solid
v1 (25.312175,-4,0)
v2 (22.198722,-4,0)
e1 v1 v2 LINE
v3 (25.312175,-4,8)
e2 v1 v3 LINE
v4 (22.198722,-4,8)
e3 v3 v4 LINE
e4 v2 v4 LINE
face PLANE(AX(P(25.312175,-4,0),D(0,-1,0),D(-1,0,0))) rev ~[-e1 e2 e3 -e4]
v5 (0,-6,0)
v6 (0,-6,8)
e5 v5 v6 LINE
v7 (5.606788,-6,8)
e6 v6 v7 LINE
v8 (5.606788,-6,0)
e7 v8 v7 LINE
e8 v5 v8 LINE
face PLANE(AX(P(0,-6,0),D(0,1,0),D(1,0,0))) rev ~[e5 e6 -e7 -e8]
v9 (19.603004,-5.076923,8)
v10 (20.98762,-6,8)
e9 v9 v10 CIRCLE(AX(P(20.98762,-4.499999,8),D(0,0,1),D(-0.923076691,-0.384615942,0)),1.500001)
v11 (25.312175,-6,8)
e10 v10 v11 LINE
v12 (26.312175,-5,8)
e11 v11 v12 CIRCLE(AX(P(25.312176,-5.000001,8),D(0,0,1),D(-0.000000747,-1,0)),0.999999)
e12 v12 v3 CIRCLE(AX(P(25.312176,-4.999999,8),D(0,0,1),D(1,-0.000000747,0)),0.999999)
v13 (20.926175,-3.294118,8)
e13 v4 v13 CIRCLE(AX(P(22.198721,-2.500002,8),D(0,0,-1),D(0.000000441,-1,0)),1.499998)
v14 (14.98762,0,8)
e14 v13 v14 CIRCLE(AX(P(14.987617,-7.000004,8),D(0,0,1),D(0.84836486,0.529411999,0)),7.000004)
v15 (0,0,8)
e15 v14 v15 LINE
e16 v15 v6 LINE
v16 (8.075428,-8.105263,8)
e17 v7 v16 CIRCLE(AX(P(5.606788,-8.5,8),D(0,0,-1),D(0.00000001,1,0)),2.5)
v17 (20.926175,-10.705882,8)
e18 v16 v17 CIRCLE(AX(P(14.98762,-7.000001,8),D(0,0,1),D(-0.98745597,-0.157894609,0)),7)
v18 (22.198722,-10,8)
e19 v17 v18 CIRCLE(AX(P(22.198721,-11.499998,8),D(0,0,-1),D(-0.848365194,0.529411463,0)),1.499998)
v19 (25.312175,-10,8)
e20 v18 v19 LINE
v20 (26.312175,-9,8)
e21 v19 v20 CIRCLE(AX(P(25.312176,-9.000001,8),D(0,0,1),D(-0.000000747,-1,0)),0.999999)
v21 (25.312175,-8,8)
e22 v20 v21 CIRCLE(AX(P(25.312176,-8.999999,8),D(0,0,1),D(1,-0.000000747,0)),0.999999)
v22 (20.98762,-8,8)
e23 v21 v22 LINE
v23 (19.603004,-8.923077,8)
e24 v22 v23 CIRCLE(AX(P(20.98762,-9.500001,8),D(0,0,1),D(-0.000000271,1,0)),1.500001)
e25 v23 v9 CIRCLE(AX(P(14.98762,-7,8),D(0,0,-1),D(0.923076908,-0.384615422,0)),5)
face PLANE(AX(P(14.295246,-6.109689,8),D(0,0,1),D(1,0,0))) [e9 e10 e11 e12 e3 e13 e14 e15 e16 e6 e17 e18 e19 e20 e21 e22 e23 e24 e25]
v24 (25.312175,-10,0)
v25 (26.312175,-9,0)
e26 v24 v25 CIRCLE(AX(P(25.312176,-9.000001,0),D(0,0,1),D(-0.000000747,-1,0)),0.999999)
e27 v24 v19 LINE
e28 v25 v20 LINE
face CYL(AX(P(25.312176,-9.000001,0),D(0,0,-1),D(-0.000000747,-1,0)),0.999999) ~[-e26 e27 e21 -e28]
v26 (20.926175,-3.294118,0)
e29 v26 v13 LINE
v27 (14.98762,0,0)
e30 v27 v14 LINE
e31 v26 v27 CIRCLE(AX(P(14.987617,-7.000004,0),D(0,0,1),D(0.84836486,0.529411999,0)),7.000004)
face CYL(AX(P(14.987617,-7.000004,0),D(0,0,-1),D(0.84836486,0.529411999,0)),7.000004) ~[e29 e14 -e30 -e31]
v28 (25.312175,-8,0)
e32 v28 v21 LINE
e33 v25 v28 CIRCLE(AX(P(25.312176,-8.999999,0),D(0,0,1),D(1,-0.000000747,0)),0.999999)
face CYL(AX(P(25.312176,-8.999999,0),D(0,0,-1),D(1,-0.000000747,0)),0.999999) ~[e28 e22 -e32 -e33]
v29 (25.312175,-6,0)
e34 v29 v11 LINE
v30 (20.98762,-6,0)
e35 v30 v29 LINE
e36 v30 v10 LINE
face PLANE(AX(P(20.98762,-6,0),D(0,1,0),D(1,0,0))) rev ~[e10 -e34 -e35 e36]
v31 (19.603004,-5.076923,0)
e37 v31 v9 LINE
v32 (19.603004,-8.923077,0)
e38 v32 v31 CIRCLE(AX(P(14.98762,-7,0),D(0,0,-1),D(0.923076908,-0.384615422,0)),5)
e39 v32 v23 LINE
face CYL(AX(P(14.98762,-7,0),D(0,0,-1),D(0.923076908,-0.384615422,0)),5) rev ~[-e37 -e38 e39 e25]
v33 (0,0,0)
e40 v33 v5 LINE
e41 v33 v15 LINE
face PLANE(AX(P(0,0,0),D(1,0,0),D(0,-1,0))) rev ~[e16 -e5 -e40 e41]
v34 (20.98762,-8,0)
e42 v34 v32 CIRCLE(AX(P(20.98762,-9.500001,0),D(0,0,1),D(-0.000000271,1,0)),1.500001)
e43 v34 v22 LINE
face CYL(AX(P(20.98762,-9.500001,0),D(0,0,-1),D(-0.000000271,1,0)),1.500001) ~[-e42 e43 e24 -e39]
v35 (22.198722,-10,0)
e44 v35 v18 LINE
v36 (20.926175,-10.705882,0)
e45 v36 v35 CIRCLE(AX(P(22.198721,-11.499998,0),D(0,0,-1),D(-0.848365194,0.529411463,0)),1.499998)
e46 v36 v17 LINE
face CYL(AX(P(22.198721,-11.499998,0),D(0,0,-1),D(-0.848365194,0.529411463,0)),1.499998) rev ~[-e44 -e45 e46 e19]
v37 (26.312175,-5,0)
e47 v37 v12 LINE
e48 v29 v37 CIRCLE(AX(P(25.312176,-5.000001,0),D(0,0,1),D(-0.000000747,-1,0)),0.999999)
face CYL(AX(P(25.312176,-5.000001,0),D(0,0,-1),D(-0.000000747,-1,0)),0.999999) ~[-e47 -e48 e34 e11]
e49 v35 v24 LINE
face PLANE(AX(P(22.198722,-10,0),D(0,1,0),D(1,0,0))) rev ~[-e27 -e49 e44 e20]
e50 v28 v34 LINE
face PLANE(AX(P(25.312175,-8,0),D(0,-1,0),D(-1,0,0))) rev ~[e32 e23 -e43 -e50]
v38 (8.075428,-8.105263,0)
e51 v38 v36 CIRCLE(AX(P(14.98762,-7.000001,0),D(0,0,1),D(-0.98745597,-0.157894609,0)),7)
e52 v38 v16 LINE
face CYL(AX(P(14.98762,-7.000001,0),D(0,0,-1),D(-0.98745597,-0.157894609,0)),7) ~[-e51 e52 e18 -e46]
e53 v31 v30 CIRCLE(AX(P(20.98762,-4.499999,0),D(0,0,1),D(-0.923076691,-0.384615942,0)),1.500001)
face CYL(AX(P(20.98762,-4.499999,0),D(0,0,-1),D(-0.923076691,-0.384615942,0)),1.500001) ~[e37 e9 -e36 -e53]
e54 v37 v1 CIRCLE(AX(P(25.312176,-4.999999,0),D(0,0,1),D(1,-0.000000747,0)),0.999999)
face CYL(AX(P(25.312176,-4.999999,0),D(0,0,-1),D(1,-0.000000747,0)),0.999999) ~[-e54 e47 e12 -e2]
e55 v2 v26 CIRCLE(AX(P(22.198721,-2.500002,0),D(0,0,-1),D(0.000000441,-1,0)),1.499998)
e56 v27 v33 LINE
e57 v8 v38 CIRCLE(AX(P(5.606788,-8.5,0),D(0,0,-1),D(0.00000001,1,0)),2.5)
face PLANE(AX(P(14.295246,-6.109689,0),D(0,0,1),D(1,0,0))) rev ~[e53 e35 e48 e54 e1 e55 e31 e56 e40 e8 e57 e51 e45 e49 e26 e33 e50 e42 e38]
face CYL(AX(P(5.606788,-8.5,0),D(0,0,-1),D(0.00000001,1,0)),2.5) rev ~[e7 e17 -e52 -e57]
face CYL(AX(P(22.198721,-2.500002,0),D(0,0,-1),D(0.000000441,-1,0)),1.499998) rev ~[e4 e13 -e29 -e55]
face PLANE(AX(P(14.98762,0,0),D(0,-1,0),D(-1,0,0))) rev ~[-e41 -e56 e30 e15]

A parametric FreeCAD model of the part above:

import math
import FreeCAD as App
import Part
import Sketcher
from FreeCAD import Vector
Q = App.Units.Quantity

doc = App.newDocument("Part")
body = doc.addObject("PartDesign::Body", "Body")

# Sketch on XY plane
sketch1 = doc.addObject("Sketcher::SketchObject", "Sketch")
body.addObject(sketch1)
sketch1.AttachmentSupport = (doc.XY_Plane, [""])
sketch1.MapMode = "FlatFace"
sketch1.addGeometry([
    Part.LineSegment(Vector(0, 0, 0), Vector(0, -6, 0)),  # 0
    Part.LineSegment(Vector(0, -6, 0), Vector(5.6, -6, 0)),  # 1
    Part.ArcOfCircle(Part.Circle(Vector(5.6, -8.5, 0), Vector(0, 0, 1), 2.5), math.radians(9), math.radians(90)),  # 2
    Part.ArcOfCircle(Part.Circle(Vector(15, -7, 0), Vector(0, 0, 1), 7), math.radians(-171), math.radians(-32)),  # 3
    Part.ArcOfCircle(Part.Circle(Vector(22.2, -11.5, 0), Vector(0, 0, 1), 1.5), math.radians(90), math.radians(148)),  # 4
    Part.LineSegment(Vector(22.2, -10, 0), Vector(25.3, -10, 0)),  # 5
    Part.ArcOfCircle(Part.Circle(Vector(25.3, -9, 0), Vector(0, 0, 1), 1), math.radians(-90), math.radians(0)),  # 6
    Part.ArcOfCircle(Part.Circle(Vector(25.3, -9, 0), Vector(0, 0, 1), 1), math.radians(0), math.radians(90)),  # 7
    Part.LineSegment(Vector(25.3, -8, 0), Vector(21, -8, 0)),  # 8
    Part.ArcOfCircle(Part.Circle(Vector(21, -9.5, 0), Vector(0, 0, 1), 1.5), math.radians(90), math.radians(157)),  # 9
    Part.ArcOfCircle(Part.Circle(Vector(15, -7, 0), Vector(0, 0, 1), 5), math.radians(23), math.radians(337)),  # 10
    Part.ArcOfCircle(Part.Circle(Vector(21, -4.5, 0), Vector(0, 0, 1), 1.5), math.radians(-157), math.radians(-90)),  # 11
    Part.LineSegment(Vector(21, -6, 0), Vector(25.3, -6, 0)),  # 12
    Part.ArcOfCircle(Part.Circle(Vector(25.3, -5, 0), Vector(0, 0, 1), 1), math.radians(-90), math.radians(0)),  # 13
    Part.ArcOfCircle(Part.Circle(Vector(25.3, -5, 0), Vector(0, 0, 1), 1), math.radians(0), math.radians(90)),  # 14
    Part.LineSegment(Vector(25.3, -4, 0), Vector(22.2, -4, 0)),  # 15
    Part.ArcOfCircle(Part.Circle(Vector(22.2, -2.5, 0), Vector(0, 0, 1), 1.5), math.radians(-148), math.radians(-90)),  # 16
    Part.ArcOfCircle(Part.Circle(Vector(15, -7, 0), Vector(0, 0, 1), 7), math.radians(32), math.radians(90)),  # 17
    Part.LineSegment(Vector(15, 0, 0), Vector(0, 0, 0)),  # 18
], False)
sketch1.addConstraint([
    Sketcher.Constraint("Coincident", 0, 2, 1, 1),
    Sketcher.Constraint("Tangent", 1, 2, 2, 2),
    Sketcher.Constraint("Tangent", 2, 1, 3, 1),
    Sketcher.Constraint("Tangent", 3, 2, 4, 2),
    Sketcher.Constraint("Tangent", 4, 1, 5, 1),
    Sketcher.Constraint("Tangent", 5, 2, 6, 1),
    Sketcher.Constraint("Tangent", 6, 2, 7, 1),
    Sketcher.Constraint("Tangent", 7, 2, 8, 1),
    Sketcher.Constraint("Tangent", 8, 2, 9, 1),
    Sketcher.Constraint("Tangent", 9, 2, 10, 2),
    Sketcher.Constraint("Tangent", 10, 1, 11, 1),
    Sketcher.Constraint("Tangent", 11, 2, 12, 1),
    Sketcher.Constraint("Tangent", 12, 2, 13, 1),
    Sketcher.Constraint("Tangent", 13, 2, 14, 1),
    Sketcher.Constraint("Tangent", 14, 2, 15, 1),
    Sketcher.Constraint("Tangent", 15, 2, 16, 2),
    Sketcher.Constraint("Tangent", 16, 1, 17, 1),
    Sketcher.Constraint("Tangent", 17, 2, 18, 1),
    Sketcher.Constraint("Coincident", 18, 2, 0, 1),
    Sketcher.Constraint("Vertical", 0),
    Sketcher.Constraint("Horizontal", 1),
    Sketcher.Constraint("Horizontal", 5),
    Sketcher.Constraint("Horizontal", 8),
    Sketcher.Constraint("Horizontal", 12),
    Sketcher.Constraint("Horizontal", 15),
    Sketcher.Constraint("Horizontal", 18),
    Sketcher.Constraint("Coincident", 18, 2, -1, 1),
    Sketcher.Constraint("Coincident", 10, 3, 3, 3),
    Sketcher.Constraint("Coincident", 17, 3, 3, 3),
    Sketcher.Constraint("Equal", 6, 7),
    Sketcher.Constraint("Equal", 9, 11),
    Sketcher.Constraint("Equal", 7, 13),
    Sketcher.Constraint("Equal", 13, 14),
    Sketcher.Constraint("Equal", 4, 16),
    Sketcher.Constraint("Horizontal", 7, 3, 6, 2),
    Sketcher.Constraint("Horizontal", 1, 2, 11, 2),
    Sketcher.Constraint("Horizontal", 14, 3, 13, 2),
    Sketcher.Constraint("Vertical", 9, 3, 11, 3),
    Sketcher.Constraint("Vertical", 7, 3, 13, 3),
    Sketcher.Constraint("Vertical", 4, 3, 16, 3),
    Sketcher.Constraint("Radius", 3, Q("7 mm")),
    Sketcher.Constraint("Radius", 6, Q("0.999999 mm")),
    Sketcher.Constraint("Radius", 10, Q("5 mm")),
    Sketcher.Constraint("Radius", 2, Q("2.5 mm")),
    Sketcher.Constraint("Radius", 4, Q("1.499998 mm")),
    Sketcher.Constraint("Radius", 9, Q("1.500001 mm")),
    Sketcher.Constraint("DistanceY", 0, 2, 0, 1, Q("6 mm")),
    Sketcher.Constraint("DistanceX", 3, 2, 6, 3, Q("4.386001 mm")),
    Sketcher.Constraint("DistanceX", 18, 2, 18, 1, Q("14.98762 mm")),
])
pad1 = doc.addObject("PartDesign::Pad", "Pad")
body.addObject(pad1)
pad1.Profile = sketch1
pad1.Length = 8

doc.recompute()
